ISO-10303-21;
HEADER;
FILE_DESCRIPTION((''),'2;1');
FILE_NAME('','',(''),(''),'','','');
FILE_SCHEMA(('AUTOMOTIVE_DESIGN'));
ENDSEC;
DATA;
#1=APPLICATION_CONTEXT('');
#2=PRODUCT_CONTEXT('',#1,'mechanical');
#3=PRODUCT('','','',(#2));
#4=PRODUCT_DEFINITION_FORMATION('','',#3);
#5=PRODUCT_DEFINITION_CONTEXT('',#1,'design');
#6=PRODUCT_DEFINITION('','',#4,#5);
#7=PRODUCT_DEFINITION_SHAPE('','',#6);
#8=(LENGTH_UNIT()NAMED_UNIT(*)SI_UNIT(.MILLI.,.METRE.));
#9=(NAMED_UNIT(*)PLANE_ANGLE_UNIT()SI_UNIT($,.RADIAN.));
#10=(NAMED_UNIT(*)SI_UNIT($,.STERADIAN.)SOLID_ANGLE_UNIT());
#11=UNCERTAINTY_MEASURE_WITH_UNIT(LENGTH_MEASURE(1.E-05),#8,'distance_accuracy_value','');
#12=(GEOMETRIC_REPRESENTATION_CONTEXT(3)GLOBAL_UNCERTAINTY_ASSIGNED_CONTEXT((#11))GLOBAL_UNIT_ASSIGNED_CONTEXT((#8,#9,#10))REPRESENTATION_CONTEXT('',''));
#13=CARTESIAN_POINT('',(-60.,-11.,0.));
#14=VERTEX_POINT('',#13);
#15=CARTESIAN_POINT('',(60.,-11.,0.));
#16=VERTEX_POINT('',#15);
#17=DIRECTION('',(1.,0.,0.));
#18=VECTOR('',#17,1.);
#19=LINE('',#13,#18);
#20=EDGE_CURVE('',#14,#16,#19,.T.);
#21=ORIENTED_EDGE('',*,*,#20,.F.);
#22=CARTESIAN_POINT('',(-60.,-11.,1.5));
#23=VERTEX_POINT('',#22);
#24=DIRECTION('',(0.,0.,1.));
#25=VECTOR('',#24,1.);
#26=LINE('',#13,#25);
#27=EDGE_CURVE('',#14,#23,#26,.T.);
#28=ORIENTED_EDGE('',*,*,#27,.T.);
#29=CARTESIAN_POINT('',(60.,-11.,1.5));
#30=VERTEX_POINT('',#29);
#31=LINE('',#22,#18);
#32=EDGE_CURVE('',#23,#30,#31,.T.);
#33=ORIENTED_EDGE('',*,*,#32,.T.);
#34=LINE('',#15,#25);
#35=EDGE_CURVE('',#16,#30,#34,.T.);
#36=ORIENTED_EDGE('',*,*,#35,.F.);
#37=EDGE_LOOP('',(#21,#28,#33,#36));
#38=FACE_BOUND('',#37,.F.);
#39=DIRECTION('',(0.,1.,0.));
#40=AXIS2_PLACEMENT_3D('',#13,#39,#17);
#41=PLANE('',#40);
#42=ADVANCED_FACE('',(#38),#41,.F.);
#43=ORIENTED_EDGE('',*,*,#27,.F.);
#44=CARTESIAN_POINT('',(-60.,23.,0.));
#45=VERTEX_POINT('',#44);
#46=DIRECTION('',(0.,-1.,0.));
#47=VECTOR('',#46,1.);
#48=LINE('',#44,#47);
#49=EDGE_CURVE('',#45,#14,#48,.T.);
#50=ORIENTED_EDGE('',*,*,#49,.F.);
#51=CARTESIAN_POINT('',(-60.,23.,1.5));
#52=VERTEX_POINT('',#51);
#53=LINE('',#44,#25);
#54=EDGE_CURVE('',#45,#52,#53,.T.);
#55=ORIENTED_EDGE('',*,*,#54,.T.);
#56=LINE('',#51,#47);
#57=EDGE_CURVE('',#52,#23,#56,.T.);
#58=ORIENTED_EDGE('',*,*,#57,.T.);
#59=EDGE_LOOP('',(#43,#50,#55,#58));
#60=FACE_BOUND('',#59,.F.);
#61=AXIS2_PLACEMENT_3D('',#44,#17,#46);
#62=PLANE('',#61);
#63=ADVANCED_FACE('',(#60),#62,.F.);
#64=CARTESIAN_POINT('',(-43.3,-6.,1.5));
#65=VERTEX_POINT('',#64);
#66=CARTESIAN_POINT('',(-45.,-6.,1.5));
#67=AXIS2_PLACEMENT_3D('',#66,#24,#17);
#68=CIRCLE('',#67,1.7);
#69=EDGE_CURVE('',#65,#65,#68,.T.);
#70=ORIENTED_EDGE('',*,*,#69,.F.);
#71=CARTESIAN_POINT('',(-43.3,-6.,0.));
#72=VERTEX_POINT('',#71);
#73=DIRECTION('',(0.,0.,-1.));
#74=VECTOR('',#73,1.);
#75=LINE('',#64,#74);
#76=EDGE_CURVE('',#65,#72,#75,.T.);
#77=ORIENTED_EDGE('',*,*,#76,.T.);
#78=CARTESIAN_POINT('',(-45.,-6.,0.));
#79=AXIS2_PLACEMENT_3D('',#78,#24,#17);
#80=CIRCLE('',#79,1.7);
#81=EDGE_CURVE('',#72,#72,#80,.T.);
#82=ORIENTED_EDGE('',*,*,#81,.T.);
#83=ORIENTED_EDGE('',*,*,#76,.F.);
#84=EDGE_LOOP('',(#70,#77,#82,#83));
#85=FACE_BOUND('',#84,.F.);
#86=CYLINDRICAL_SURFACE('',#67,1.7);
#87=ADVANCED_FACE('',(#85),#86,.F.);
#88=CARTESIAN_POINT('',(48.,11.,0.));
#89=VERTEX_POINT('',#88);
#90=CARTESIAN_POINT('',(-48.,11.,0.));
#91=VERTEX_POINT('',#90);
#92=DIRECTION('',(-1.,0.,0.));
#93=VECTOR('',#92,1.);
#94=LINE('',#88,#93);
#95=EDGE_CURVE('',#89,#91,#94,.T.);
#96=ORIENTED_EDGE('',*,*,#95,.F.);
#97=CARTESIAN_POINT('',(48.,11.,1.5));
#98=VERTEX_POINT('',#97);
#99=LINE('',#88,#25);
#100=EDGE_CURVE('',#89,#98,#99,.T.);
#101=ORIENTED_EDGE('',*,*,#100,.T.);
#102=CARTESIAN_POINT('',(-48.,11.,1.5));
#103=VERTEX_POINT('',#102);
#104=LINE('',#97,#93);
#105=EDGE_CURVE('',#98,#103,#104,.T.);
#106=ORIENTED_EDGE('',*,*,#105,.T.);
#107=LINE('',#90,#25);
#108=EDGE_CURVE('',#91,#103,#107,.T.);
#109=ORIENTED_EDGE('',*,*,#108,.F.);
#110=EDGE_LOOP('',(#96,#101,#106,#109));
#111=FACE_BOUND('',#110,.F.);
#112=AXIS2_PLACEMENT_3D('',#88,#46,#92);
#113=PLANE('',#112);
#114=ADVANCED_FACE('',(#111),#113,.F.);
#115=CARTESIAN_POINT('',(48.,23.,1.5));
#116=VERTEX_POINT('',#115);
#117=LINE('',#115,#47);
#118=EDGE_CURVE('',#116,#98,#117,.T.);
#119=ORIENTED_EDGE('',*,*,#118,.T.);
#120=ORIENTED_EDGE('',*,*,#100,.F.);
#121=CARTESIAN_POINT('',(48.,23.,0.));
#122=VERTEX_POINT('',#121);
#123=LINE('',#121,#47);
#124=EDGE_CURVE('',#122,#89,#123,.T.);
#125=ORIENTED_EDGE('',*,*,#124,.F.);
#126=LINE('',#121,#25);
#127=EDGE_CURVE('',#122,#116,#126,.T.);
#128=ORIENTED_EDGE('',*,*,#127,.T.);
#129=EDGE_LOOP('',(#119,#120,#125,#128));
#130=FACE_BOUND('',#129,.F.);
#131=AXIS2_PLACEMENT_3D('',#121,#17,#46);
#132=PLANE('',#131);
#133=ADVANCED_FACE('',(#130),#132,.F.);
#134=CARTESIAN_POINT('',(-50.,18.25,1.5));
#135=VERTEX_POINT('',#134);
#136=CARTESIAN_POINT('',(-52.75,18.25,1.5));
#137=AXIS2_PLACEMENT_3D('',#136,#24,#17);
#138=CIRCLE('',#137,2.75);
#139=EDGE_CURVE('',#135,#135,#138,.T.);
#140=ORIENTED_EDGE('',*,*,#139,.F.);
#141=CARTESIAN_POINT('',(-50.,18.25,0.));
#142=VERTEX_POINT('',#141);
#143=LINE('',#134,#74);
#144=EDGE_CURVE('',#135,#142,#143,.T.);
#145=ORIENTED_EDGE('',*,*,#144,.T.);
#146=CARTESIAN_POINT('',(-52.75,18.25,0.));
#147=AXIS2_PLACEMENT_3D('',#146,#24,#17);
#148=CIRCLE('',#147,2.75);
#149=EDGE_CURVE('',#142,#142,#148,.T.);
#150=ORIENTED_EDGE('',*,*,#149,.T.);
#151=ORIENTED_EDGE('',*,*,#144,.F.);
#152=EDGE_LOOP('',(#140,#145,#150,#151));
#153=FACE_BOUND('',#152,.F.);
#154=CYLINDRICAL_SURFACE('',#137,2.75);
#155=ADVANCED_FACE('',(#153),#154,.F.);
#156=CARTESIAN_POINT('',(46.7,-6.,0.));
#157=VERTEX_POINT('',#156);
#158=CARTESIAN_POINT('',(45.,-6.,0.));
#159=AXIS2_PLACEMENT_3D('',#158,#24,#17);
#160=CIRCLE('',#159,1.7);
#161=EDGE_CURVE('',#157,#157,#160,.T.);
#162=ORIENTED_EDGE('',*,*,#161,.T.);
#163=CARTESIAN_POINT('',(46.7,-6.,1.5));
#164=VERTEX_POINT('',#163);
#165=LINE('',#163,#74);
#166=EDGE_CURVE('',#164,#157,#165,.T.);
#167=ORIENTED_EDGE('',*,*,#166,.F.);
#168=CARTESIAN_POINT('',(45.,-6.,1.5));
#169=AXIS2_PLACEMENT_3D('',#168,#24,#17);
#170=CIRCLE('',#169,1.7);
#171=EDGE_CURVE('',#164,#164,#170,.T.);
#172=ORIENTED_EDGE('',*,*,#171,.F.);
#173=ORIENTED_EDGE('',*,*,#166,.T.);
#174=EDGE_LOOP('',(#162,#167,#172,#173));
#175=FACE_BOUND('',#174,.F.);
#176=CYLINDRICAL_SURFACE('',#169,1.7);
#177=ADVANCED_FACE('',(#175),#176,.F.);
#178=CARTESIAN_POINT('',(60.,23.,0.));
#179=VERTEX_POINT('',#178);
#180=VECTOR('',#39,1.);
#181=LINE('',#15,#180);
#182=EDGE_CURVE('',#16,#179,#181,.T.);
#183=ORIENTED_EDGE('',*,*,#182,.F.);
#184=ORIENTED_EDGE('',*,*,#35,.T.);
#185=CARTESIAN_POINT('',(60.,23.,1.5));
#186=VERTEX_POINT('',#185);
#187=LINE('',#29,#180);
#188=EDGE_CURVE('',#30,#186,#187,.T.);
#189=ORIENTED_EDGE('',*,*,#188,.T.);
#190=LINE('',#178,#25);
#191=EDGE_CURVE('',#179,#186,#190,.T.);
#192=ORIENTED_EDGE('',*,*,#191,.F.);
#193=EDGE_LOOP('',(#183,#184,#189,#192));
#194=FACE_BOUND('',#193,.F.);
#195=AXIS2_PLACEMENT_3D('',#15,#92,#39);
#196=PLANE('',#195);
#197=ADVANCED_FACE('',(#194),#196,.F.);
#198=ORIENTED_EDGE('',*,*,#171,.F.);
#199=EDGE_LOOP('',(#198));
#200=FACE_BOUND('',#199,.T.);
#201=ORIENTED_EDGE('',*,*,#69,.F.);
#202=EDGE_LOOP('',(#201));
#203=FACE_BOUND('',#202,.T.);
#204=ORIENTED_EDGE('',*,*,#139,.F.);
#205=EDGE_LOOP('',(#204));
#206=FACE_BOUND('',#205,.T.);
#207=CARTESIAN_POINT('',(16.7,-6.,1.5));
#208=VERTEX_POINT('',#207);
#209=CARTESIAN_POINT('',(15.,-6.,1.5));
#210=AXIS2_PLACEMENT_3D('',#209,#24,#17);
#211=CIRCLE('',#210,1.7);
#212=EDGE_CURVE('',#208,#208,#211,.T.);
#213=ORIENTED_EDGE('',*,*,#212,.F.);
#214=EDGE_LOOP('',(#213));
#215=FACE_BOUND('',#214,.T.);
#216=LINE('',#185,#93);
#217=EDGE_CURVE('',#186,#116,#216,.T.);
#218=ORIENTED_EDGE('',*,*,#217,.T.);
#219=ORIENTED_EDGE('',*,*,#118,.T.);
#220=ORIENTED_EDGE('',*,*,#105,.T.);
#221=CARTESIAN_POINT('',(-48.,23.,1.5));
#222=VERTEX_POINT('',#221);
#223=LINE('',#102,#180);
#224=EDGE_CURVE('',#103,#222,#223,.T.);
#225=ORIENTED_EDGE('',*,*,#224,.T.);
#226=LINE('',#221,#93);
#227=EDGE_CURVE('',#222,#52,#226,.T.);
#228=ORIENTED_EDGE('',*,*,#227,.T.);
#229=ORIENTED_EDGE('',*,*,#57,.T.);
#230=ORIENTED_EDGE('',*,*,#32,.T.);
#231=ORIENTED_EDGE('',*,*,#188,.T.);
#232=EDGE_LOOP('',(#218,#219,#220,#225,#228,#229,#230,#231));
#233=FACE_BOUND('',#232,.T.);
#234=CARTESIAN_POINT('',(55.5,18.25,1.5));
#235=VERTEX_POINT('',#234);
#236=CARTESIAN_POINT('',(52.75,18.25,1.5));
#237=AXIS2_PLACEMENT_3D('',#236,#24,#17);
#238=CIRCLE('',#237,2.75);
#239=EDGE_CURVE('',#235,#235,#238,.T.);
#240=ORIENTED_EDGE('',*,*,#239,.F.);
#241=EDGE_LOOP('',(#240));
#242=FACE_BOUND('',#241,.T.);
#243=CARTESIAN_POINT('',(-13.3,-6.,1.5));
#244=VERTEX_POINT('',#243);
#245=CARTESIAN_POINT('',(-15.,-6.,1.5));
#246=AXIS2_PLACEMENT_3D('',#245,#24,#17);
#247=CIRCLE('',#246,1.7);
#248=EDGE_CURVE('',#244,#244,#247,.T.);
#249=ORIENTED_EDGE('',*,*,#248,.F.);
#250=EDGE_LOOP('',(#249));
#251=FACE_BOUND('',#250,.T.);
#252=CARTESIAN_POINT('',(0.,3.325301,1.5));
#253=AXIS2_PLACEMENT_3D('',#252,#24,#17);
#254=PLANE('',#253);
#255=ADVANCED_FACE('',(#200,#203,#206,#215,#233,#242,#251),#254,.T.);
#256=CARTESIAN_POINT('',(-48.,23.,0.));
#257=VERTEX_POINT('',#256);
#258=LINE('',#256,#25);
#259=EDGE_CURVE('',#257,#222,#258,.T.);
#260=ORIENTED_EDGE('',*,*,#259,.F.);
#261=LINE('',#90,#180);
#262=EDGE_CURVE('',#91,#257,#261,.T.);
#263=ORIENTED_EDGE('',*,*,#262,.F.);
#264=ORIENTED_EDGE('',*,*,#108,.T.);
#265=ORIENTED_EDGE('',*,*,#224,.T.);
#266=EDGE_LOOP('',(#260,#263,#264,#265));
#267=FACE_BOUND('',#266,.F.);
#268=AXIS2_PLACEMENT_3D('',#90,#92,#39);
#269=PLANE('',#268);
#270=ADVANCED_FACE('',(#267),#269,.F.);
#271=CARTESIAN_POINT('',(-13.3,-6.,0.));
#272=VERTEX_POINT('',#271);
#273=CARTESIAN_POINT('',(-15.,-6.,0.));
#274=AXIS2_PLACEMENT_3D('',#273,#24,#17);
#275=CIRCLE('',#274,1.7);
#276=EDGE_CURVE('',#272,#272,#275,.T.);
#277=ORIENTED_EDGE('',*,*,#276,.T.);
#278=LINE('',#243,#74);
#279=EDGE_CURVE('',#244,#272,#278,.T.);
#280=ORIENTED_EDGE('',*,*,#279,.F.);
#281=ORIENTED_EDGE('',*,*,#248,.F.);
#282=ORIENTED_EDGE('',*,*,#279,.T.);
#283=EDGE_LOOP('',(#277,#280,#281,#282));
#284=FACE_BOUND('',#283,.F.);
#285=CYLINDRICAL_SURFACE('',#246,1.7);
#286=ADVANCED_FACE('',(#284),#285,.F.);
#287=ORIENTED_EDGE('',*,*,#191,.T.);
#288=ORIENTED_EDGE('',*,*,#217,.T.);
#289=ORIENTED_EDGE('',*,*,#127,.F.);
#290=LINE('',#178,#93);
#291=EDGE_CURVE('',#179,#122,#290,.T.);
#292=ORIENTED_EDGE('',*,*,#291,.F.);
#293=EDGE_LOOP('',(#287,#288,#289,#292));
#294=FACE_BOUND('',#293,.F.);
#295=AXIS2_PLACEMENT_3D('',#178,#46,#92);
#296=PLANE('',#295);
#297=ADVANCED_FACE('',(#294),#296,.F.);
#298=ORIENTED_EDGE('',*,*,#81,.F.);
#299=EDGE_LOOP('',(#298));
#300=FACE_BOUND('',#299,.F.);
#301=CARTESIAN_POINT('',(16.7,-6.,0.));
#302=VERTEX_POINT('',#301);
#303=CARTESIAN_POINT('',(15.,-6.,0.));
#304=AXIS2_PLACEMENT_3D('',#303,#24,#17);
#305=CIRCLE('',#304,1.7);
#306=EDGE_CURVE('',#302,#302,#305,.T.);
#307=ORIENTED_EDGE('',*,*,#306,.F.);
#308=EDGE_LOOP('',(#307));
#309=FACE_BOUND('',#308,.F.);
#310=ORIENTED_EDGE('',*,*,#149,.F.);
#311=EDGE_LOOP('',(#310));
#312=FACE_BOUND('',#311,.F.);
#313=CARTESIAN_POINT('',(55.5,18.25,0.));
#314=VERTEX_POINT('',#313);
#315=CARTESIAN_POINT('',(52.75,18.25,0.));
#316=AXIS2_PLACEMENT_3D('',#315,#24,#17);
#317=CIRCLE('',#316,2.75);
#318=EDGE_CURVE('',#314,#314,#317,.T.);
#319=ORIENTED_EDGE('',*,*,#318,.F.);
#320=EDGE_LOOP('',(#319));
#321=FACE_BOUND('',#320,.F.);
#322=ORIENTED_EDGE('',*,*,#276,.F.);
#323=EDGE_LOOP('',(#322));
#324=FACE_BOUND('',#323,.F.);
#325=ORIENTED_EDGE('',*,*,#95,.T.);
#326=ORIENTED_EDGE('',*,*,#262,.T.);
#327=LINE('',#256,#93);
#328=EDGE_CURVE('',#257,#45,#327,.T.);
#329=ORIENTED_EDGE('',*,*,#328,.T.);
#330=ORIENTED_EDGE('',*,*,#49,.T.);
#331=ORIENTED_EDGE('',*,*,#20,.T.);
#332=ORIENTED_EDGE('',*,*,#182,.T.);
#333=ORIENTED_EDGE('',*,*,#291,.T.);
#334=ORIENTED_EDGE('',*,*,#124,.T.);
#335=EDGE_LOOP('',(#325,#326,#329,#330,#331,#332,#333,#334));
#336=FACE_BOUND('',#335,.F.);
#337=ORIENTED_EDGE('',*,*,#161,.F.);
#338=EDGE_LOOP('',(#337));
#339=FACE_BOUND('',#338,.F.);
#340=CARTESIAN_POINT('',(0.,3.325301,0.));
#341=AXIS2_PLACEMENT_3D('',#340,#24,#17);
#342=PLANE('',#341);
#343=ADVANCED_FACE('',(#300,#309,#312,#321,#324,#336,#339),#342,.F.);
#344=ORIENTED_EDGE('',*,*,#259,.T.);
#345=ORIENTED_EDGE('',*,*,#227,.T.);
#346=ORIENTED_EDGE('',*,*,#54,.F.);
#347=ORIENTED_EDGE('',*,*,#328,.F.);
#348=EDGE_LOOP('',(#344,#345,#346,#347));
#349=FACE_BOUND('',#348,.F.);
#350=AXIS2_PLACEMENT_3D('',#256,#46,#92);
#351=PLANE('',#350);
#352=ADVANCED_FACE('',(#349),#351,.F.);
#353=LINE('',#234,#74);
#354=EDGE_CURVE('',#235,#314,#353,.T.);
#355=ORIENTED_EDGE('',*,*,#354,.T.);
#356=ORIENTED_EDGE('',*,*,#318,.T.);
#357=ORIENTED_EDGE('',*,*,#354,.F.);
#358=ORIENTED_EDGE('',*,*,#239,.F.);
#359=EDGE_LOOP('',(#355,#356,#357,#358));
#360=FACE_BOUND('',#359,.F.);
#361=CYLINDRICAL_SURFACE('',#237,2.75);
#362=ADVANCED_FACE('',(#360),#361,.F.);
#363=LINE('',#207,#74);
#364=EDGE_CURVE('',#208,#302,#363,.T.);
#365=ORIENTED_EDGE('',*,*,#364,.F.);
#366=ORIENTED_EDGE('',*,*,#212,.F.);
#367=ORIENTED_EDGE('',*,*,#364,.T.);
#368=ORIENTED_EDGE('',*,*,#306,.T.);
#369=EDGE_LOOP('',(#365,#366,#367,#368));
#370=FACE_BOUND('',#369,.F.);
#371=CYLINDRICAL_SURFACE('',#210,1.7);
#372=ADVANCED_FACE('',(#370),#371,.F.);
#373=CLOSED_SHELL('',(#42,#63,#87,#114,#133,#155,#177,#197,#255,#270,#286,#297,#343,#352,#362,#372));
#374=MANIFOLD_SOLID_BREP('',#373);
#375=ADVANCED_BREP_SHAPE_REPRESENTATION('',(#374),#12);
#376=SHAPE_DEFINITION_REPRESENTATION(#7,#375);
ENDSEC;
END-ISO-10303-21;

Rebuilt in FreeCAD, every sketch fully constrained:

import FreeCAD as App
import Part
import Sketcher

V = App.Vector

doc = App.newDocument("Part")
body = doc.addObject("PartDesign::Body", "Body")

# Sketch on XY plane
sketch1 = doc.addObject("Sketcher::SketchObject", "Sketch")
body.addObject(sketch1)
sketch1.AttachmentSupport = (doc.XY_Plane, [""])
sketch1.MapMode = "FlatFace"
sketch1.addGeometry([
    Part.LineSegment(V(-60, -11, 0), V(60, -11, 0)),  # 0
    Part.LineSegment(V(60, -11, 0), V(60, 23, 0)),  # 1
    Part.LineSegment(V(60, 23, 0), V(48, 23, 0)),  # 2
    Part.LineSegment(V(48, 23, 0), V(48, 11, 0)),  # 3
    Part.LineSegment(V(48, 11, 0), V(-48, 11, 0)),  # 4
    Part.LineSegment(V(-48, 11, 0), V(-48, 23, 0)),  # 5
    Part.LineSegment(V(-48, 23, 0), V(-60, 23, 0)),  # 6
    Part.LineSegment(V(-60, 23, 0), V(-60, -11, 0)),  # 7
], False)
sketch1.addConstraint([
    Sketcher.Constraint("Coincident", 0, 2, 1, 1),
    Sketcher.Constraint("Coincident", 1, 2, 2, 1),
    Sketcher.Constraint("Coincident", 2, 2, 3, 1),
    Sketcher.Constraint("Coincident", 3, 2, 4, 1),
    Sketcher.Constraint("Coincident", 4, 2, 5, 1),
    Sketcher.Constraint("Coincident", 5, 2, 6, 1),
    Sketcher.Constraint("Coincident", 6, 2, 7, 1),
    Sketcher.Constraint("Coincident", 7, 2, 0, 1),
    Sketcher.Constraint("Horizontal", 0),
    Sketcher.Constraint("Vertical", 1),
    Sketcher.Constraint("Horizontal", 2),
    Sketcher.Constraint("Vertical", 3),
    Sketcher.Constraint("Horizontal", 4),
    Sketcher.Constraint("Vertical", 5),
    Sketcher.Constraint("Horizontal", 6),
    Sketcher.Constraint("Vertical", 7),
    Sketcher.Constraint("Symmetric", 2, 2, 5, 2, -2),
    Sketcher.Constraint("Equal", 2, 6),
    Sketcher.Constraint("Equal", 6, 3),
    Sketcher.Constraint("DistanceX", 0, 1, 0, 2, 120.0),
    Sketcher.Constraint("DistanceX", 2, 2, 2, 1, 12.0),
    Sketcher.Constraint("DistanceY", 1, 1, 1, 2, 34.0),
    Sketcher.Constraint("DistanceY", 0, 2, -1, 1, 11.0),
])
pad1 = doc.addObject("PartDesign::Pad", "Pad")
body.addObject(pad1)
pad1.Profile = sketch1
pad1.Length = 1.5

# Sketch on XY plane
sketch2 = doc.addObject("Sketcher::SketchObject", "Sketch001")
body.addObject(sketch2)
sketch2.AttachmentSupport = (doc.XY_Plane, [""])
sketch2.MapMode = "FlatFace"
sketch2.AttachmentOffset = App.Placement(V(0, 0, 1.5), App.Rotation())
sketch2.addGeometry([
    Part.Circle(V(-45, -6, 0), V(0, 0, 1), 1.7),
    Part.Circle(V(-15, -6, 0), V(0, 0, 1), 1.7),
    Part.Circle(V(15, -6, 0), V(0, 0, 1), 1.7),
    Part.Circle(V(45, -6, 0), V(0, 0, 1), 1.7),
], False)
sketch2.addConstraint([
    Sketcher.Constraint("Equal", 0, 1),
    Sketcher.Constraint("Equal", 1, 2),
    Sketcher.Constraint("Equal", 2, 3),
    Sketcher.Constraint("Symmetric", 1, 3, 2, 3, -2),
    Sketcher.Constraint("Symmetric", 0, 3, 3, 3, -2),
    Sketcher.Constraint("Horizontal", 0, 3, 1, 3),
    Sketcher.Constraint("Diameter", 0, 3.4),
    Sketcher.Constraint("DistanceX", 0, 3, -1, 1, 45.0),
    Sketcher.Constraint("DistanceY", 0, 3, -1, 1, 6.0),
    Sketcher.Constraint("DistanceX", 1, 3, -1, 1, 15.0),
])
pocket1 = doc.addObject("PartDesign::Pocket", "Pocket")
body.addObject(pocket1)
pocket1.Profile = sketch2
pocket1.Length = 25

# Sketch on XY plane
sketch3 = doc.addObject("Sketcher::SketchObject", "Sketch002")
body.addObject(sketch3)
sketch3.AttachmentSupport = (doc.XY_Plane, [""])
sketch3.MapMode = "FlatFace"
sketch3.AttachmentOffset = App.Placement(V(0, 0, 1.5), App.Rotation())
sketch3.addGeometry([
    Part.Circle(V(52.8, 18.2, 0), V(0, 0, 1), 2.8),
    Part.Circle(V(-52.8, 18.2, 0), V(0, 0, 1), 2.8),
], False)
sketch3.addConstraint([
    Sketcher.Constraint("Equal", 0, 1),
    Sketcher.Constraint("Symmetric", 0, 3, 1, 3, -2),
    Sketcher.Constraint("Diameter", 0, 5.5),
    Sketcher.Constraint("DistanceX", 1, 3, 0, 3, 105.5),
    Sketcher.Constraint("DistanceY", -1, 1, 0, 3, 18.25),
])
pocket2 = doc.addObject("PartDesign::Pocket", "Pocket001")
body.addObject(pocket2)
pocket2.Profile = sketch3
pocket2.Length = 25

doc.recompute()
